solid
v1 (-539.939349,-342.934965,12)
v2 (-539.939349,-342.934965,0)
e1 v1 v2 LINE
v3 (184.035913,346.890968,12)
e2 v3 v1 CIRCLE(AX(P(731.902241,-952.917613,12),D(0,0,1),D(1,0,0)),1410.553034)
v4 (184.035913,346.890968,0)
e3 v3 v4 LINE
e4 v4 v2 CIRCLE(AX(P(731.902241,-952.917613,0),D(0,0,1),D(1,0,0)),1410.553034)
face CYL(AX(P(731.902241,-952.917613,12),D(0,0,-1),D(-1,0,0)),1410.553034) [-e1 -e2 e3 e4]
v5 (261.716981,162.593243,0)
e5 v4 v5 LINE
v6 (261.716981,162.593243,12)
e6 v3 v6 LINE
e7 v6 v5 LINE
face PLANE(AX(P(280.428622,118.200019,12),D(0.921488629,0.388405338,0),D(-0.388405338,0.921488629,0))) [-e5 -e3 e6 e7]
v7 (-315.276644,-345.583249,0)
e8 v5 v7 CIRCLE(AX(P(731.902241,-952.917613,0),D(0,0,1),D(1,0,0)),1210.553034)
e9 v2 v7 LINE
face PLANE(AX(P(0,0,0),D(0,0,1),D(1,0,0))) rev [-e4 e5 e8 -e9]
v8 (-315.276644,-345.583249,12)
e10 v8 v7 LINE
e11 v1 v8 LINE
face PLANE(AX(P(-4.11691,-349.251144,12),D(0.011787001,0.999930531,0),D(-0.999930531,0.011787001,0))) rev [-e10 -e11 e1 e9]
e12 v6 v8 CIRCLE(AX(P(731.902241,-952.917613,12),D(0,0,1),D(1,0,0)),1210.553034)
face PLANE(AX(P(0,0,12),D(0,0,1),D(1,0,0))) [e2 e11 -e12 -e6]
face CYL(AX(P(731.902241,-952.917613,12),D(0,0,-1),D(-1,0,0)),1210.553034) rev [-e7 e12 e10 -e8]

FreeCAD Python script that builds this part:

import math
import FreeCAD as App
import Part
import Sketcher
from FreeCAD import Vector
Q = App.Units.Quantity

doc = App.newDocument("Part")
body = doc.addObject("PartDesign::Body", "Body")

# Sketch on XY plane
sketch1 = doc.addObject("Sketcher::SketchObject", "Sketch")
body.addObject(sketch1)
sketch1.AttachmentSupport = (doc.XY_Plane, [""])
sketch1.MapMode = "FlatFace"
sketch1.addGeometry([
    Part.LineSegment(Vector(262, 163, 0), Vector(184, 347, 0)),
    Part.ArcOfCircle(Part.Circle(Vector(732, -953, 0), Vector(0, 0, 1), 1411), math.radians(113), math.radians(154)),
    Part.LineSegment(Vector(-540, -343, 0), Vector(-315, -346, 0)),
    Part.ArcOfCircle(Part.Circle(Vector(732, -953, 0), Vector(0, 0, 1), 1211), math.radians(113), math.radians(150)),
], False)
sketch1.addConstraint([
    Sketcher.Constraint("Coincident", 0, 2, 1, 1),
    Sketcher.Constraint("Coincident", 1, 2, 2, 1),
    Sketcher.Constraint("Coincident", 2, 2, 3, 2),
    Sketcher.Constraint("Coincident", 3, 1, 0, 1),
    Sketcher.Constraint("Coincident", 3, 3, 1, 3),
    Sketcher.Constraint("Distance", 0, 200.0),
    Sketcher.Constraint("Radius", 1, 1410.553034),
    Sketcher.Constraint("DistanceX", -1, 1, 1, 3, 731.902241),
    Sketcher.Constraint("DistanceY", -1, 1, 0, 2, 346.890968),
    Sketcher.Constraint("DistanceY", 2, 2, -1, 1, 345.583249),
    Sketcher.Constraint("DistanceY", 3, 3, 0, 2, 1299.808581),
    Sketcher.Constraint("Distance", 2, 224.678313),
    Sketcher.Constraint("Angle", 0, Q("112.855311 deg")),
])
pad1 = doc.addObject("PartDesign::Pad", "Pad")
body.addObject(pad1)
pad1.Profile = sketch1
pad1.Length = 12

doc.recompute()
